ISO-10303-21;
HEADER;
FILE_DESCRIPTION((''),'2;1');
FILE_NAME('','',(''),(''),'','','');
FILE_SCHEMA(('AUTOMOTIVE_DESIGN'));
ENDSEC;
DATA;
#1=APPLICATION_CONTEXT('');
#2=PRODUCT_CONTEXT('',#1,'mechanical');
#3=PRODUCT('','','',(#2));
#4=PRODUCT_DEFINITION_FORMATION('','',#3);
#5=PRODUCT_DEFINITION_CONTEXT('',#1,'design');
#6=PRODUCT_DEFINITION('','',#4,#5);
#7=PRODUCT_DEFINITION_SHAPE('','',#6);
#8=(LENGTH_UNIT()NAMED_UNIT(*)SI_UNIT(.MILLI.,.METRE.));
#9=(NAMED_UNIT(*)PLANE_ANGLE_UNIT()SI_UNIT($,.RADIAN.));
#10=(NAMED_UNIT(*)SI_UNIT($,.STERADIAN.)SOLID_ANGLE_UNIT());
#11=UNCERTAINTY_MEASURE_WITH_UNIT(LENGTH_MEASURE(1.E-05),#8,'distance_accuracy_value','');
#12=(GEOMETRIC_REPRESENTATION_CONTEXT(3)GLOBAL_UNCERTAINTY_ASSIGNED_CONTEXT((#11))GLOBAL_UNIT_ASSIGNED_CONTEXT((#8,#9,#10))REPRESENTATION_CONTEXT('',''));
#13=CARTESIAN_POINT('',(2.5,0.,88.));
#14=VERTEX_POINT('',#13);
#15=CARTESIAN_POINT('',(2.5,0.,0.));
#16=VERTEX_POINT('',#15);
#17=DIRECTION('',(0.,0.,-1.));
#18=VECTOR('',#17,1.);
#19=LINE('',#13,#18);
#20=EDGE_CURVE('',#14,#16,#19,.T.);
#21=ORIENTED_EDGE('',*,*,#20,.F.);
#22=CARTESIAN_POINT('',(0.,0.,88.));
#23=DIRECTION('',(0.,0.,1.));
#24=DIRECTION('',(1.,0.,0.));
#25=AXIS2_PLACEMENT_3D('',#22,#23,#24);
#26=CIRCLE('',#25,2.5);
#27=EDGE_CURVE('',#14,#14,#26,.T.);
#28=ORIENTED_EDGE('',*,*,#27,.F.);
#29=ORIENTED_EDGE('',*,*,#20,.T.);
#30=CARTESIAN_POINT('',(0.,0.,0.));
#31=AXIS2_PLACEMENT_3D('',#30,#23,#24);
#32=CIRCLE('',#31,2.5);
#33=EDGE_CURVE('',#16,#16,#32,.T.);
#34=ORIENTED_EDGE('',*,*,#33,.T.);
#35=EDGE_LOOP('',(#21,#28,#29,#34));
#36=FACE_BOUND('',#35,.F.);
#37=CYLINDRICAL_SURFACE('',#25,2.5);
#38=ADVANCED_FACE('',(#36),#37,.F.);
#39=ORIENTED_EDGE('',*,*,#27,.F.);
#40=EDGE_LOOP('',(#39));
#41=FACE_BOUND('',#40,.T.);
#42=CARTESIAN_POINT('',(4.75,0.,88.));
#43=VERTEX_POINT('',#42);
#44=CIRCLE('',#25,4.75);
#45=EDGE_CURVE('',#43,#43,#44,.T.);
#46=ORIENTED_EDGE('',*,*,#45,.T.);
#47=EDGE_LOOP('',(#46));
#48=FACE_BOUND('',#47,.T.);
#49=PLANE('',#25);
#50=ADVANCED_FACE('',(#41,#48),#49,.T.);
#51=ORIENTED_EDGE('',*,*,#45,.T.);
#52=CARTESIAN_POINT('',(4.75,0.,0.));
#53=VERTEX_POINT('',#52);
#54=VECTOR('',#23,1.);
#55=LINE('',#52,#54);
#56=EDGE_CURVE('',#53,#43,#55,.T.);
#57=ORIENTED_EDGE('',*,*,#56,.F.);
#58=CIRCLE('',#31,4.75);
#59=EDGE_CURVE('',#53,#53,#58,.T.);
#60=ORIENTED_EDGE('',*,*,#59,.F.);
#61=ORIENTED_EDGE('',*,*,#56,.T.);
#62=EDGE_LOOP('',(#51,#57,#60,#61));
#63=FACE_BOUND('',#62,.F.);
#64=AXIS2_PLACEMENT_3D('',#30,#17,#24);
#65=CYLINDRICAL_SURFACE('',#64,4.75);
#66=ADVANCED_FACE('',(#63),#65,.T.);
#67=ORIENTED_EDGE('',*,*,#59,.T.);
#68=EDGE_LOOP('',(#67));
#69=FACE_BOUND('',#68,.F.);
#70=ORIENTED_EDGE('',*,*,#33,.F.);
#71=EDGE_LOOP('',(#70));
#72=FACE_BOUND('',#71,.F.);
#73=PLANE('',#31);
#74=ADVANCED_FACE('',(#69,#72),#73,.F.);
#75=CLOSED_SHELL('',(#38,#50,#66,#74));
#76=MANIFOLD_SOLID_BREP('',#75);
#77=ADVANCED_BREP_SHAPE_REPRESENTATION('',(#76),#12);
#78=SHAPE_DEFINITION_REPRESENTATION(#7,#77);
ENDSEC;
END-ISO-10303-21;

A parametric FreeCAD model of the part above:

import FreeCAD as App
import Part
import Sketcher

doc = App.newDocument("Part")
body = doc.addObject("PartDesign::Body", "Body")

# Sketch on XY plane
sketch1 = body.newObject("Sketcher::SketchObject", "Sketch")
sketch1.AttachmentSupport = (doc.getObject("XY_Plane"), [""])
sketch1.MapMode = "FlatFace"
sketch1.addGeometry(Part.Circle(App.Vector(0, 0, 0), App.Vector(0, 0, 1), 4.75), False)
sketch1.addConstraint([
    Sketcher.Constraint("Coincident", 0, 3, -1, 1),
    Sketcher.Constraint("Diameter", 0, 9.5),
])
pad1 = body.newObject("PartDesign::Pad", "Pad")
pad1.Profile = sketch1
pad1.Length = 88

# Sketch on XY plane
sketch2 = body.newObject("Sketcher::SketchObject", "Sketch001")
sketch2.AttachmentSupport = (doc.getObject("XY_Plane"), [""])
sketch2.MapMode = "FlatFace"
sketch2.AttachmentOffset = App.Placement(App.Vector(0, 0, 88), App.Rotation())
sketch2.addGeometry(Part.Circle(App.Vector(0, 0, 0), App.Vector(0, 0, 1), 2.5), False)
sketch2.addConstraint([
    Sketcher.Constraint("Coincident", 0, 3, -1, 1),
    Sketcher.Constraint("Diameter", 0, 5.0),
])
pocket1 = body.newObject("PartDesign::Pocket", "Pocket")
pocket1.Profile = sketch2
pocket1.Type = "ThroughAll"

doc.recompute()
